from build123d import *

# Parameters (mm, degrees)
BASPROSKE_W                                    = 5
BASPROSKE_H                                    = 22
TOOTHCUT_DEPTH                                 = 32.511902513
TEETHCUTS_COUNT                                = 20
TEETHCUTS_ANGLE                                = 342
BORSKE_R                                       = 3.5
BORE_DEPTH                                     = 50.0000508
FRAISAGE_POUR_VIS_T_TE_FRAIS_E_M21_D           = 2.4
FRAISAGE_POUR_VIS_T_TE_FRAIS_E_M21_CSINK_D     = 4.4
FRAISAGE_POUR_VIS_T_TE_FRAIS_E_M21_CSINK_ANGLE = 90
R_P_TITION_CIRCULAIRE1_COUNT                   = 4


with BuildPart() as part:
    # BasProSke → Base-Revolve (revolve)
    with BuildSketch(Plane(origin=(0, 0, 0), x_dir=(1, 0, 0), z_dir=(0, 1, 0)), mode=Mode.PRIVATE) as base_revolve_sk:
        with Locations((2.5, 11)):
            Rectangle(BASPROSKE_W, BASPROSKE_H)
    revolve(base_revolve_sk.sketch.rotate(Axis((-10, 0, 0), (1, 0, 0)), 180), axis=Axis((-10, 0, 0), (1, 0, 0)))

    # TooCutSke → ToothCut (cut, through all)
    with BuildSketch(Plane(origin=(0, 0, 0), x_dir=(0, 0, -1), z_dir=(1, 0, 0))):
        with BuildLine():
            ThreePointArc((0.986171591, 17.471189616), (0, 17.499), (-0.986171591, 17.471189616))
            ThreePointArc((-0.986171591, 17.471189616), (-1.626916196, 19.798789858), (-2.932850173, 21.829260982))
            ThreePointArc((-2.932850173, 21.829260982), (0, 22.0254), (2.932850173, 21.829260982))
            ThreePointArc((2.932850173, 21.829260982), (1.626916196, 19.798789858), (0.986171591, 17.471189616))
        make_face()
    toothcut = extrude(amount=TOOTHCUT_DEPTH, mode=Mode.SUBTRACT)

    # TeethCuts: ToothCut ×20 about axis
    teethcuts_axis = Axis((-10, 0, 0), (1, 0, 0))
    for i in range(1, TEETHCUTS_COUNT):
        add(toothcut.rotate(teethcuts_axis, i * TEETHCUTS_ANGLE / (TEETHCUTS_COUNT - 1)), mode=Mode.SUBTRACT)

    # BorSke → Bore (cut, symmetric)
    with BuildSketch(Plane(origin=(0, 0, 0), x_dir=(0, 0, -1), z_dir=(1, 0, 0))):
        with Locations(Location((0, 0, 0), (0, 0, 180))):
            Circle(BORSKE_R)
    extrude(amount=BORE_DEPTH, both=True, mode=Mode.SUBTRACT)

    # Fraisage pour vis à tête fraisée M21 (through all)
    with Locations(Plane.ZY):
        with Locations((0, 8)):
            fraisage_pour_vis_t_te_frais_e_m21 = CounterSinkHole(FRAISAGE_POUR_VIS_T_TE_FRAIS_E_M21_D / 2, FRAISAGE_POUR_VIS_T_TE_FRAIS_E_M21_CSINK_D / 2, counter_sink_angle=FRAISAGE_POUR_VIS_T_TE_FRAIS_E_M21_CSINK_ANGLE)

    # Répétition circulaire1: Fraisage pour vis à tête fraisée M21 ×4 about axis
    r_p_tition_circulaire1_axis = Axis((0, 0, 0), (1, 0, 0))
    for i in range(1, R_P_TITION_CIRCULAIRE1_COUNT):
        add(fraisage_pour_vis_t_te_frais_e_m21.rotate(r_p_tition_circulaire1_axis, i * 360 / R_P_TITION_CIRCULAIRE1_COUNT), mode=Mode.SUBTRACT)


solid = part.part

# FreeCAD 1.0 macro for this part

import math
import FreeCAD as App
import Part
import Sketcher
from FreeCAD import Vector


def add_polygon(sketch, points):
    """Adds a closed chain of lines whose ends are joined by coincident constraints."""
    first, n = sketch.GeometryCount, len(points)
    for a, b in zip(points, points[1:] + points[:1]):
        sketch.addGeometry(Part.LineSegment(App.Vector(*a, 0), App.Vector(*b, 0)), False)
    for i in range(n):
        sketch.addConstraint(Sketcher.Constraint("Coincident", first + i, 2, first + (i + 1) % n, 1))

doc = App.newDocument("Part")
params = doc.addObject("Spreadsheet::Sheet", "Params")
for row, (alias, value) in enumerate([
    ("sketch1_width", "5 mm"),
    ("sketch1_height", "22 mm"),
    ("revolution_angle", "360 deg"),
    ("sketch2_radius", "8 mm"),
    ("sketch3_diameter", "7 mm"),
    ("pocket2_length", "100.000102 mm"),
    ("sketch4_diameter", "2.4 mm"),
    ("hole_diameter", "2.4 mm"),
    ("hole_csink_diameter", "4.4 mm"),
], start=1):
    params.set(f"A{row}", alias)
    params.set(f"B{row}", "=" + value)
    params.setAlias(f"B{row}", alias)

body = doc.addObject("PartDesign::Body", "Body")

# Sketch on XZ plane
sketch1 = body.newObject("Sketcher::SketchObject", "Sketch")
sketch1.AttachmentSupport = (doc.getObject("XZ_Plane"), [""])
sketch1.MapMode = "FlatFace"
add_polygon(sketch1, [(0, -22), (0, 0), (5, 0), (5, -22)])  # lines 0-3
sketch1.addConstraint([
    Sketcher.Constraint("Vertical", 0),
    Sketcher.Constraint("Horizontal", 1),
    Sketcher.Constraint("Vertical", 2),
    Sketcher.Constraint("Horizontal", 3),
    Sketcher.Constraint("Coincident", 0, 2, -1, 1),
    Sketcher.Constraint("DistanceX", 1, 1, 1, 2, 5.0),
    Sketcher.Constraint("DistanceY", 0, 1, 0, 2, 22.0),
])
sketch1.setExpression("Constraints[9]", "Params.sketch1_width")
sketch1.setExpression("Constraints[10]", "Params.sketch1_height")
revolution = body.newObject("PartDesign::Revolution", "Revolution")
revolution.Profile = sketch1
revolution.ReferenceAxis = (sketch1, ["H_Axis"])
revolution.setExpression("Angle", "Params.revolution_angle")

# Sketch on YZ plane
sketch2 = body.newObject("Sketcher::SketchObject", "Sketch001")
sketch2.AttachmentSupport = (doc.getObject("YZ_Plane"), [""])
sketch2.MapMode = "FlatFace"
sketch2.addGeometry([
    Part.ArcOfCircle(Part.Circle(Vector(0, 0, 0), Vector(0, 0, 1), 17.499), math.radians(-3.230666), math.radians(3.230666)),
    Part.ArcOfCircle(Part.Circle(Vector(16.536031, -8.931326, 0), Vector(0, 0, 1), 8), math.radians(48.573876), math.radians(83.287069)),
    Part.ArcOfCircle(Part.Circle(Vector(0, 0, 0), Vector(0, 0, 1), 22.0254), math.radians(-7.652098), math.radians(7.652098)),
    Part.ArcOfCircle(Part.Circle(Vector(16.536031, 8.931326, 0), Vector(0, 0, 1), 8), math.radians(-83.287069), math.radians(-48.573876)),
], False)
sketch2.addConstraint([
    Sketcher.Constraint("Coincident", 0, 1, 1, 2),
    Sketcher.Constraint("Coincident", 1, 1, 2, 1),
    Sketcher.Constraint("Coincident", 2, 2, 3, 2),
    Sketcher.Constraint("Coincident", 3, 1, 0, 2),
    Sketcher.Constraint("Coincident", 0, 3, -1, 1),
    Sketcher.Constraint("Coincident", 2, 3, -1, 1),
    Sketcher.Constraint("Equal", 1, 3),
    Sketcher.Constraint("Symmetric", 1, 3, 3, 3, -1),
    Sketcher.Constraint("Radius", 1, 8.0),
    Sketcher.Constraint("Radius", 0, 17.499),
    Sketcher.Constraint("Radius", 2, 22.0254),
    Sketcher.Constraint("DistanceY", 1, 1, 2, 2, 5.8657),
    Sketcher.Constraint("DistanceX", -1, 1, 1, 3, 16.536031),
])
sketch2.setExpression("Constraints[8]", "Params.sketch2_radius")
pocket1 = body.newObject("PartDesign::Pocket", "Pocket")
pocket1.Profile = sketch2
pocket1.Type = "ThroughAll"
pocket1.Reversed = True
doc.recompute()

polarpattern = body.newObject("PartDesign::PolarPattern", "PolarPattern")
polarpattern.Originals = [pocket1]
polarpattern.Axis = (doc.getObject("X_Axis"), [""])
polarpattern.Angle = 360
polarpattern.Occurrences = 20
body.Tip = polarpattern

# Sketch on YZ plane
sketch3 = body.newObject("Sketcher::SketchObject", "Sketch002")
sketch3.AttachmentSupport = (doc.getObject("YZ_Plane"), [""])
sketch3.MapMode = "FlatFace"
sketch3.addGeometry(Part.Circle(Vector(0, 0, 0), Vector(0, 0, 1), 3.5), False)
sketch3.addConstraint([
    Sketcher.Constraint("Coincident", 0, 3, -1, 1),
    Sketcher.Constraint("Diameter", 0, 7.0),
])
sketch3.setExpression("Constraints[1]", "Params.sketch3_diameter")
pocket2 = body.newObject("PartDesign::Pocket", "Pocket001")
pocket2.Profile = sketch3
pocket2.setExpression("Length", "Params.pocket2_length")
pocket2.Midplane = True

# Sketch on YZ plane
sketch4 = body.newObject("Sketcher::SketchObject", "Sketch003")
sketch4.AttachmentSupport = (doc.getObject("YZ_Plane"), [""])
sketch4.MapMode = "FlatFace"
sketch4.addGeometry(Part.Circle(Vector(8, 0, 0), Vector(0, 0, 1), 1.2), False)
sketch4.addConstraint([
    Sketcher.Constraint("PointOnObject", 0, 3, -1),
    Sketcher.Constraint("Diameter", 0, 2.4),
    Sketcher.Constraint("DistanceX", -1, 1, 0, 3, 8.0),
])
sketch4.setExpression("Constraints[1]", "Params.sketch4_diameter")
doc.recompute()
hole = body.newObject("PartDesign::Hole", "Hole")
hole.Profile = sketch4
hole.ThreadType = "None"
hole.setExpression("Diameter", "Params.hole_diameter")
hole.DepthType = "ThroughAll"
hole.HoleCutType = "Countersink"
hole.setExpression("HoleCutDiameter", "Params.hole_csink_diameter")
hole.HoleCutCountersinkAngle = 90
hole.Reversed = True
doc.recompute()

polarpattern2 = body.newObject("PartDesign::PolarPattern", "PolarPattern001")
polarpattern2.Originals = [hole]
polarpattern2.Axis = (doc.getObject("X_Axis"), [""])
polarpattern2.Angle = 360
polarpattern2.Occurrences = 4
body.Tip = polarpattern2

doc.recompute()
